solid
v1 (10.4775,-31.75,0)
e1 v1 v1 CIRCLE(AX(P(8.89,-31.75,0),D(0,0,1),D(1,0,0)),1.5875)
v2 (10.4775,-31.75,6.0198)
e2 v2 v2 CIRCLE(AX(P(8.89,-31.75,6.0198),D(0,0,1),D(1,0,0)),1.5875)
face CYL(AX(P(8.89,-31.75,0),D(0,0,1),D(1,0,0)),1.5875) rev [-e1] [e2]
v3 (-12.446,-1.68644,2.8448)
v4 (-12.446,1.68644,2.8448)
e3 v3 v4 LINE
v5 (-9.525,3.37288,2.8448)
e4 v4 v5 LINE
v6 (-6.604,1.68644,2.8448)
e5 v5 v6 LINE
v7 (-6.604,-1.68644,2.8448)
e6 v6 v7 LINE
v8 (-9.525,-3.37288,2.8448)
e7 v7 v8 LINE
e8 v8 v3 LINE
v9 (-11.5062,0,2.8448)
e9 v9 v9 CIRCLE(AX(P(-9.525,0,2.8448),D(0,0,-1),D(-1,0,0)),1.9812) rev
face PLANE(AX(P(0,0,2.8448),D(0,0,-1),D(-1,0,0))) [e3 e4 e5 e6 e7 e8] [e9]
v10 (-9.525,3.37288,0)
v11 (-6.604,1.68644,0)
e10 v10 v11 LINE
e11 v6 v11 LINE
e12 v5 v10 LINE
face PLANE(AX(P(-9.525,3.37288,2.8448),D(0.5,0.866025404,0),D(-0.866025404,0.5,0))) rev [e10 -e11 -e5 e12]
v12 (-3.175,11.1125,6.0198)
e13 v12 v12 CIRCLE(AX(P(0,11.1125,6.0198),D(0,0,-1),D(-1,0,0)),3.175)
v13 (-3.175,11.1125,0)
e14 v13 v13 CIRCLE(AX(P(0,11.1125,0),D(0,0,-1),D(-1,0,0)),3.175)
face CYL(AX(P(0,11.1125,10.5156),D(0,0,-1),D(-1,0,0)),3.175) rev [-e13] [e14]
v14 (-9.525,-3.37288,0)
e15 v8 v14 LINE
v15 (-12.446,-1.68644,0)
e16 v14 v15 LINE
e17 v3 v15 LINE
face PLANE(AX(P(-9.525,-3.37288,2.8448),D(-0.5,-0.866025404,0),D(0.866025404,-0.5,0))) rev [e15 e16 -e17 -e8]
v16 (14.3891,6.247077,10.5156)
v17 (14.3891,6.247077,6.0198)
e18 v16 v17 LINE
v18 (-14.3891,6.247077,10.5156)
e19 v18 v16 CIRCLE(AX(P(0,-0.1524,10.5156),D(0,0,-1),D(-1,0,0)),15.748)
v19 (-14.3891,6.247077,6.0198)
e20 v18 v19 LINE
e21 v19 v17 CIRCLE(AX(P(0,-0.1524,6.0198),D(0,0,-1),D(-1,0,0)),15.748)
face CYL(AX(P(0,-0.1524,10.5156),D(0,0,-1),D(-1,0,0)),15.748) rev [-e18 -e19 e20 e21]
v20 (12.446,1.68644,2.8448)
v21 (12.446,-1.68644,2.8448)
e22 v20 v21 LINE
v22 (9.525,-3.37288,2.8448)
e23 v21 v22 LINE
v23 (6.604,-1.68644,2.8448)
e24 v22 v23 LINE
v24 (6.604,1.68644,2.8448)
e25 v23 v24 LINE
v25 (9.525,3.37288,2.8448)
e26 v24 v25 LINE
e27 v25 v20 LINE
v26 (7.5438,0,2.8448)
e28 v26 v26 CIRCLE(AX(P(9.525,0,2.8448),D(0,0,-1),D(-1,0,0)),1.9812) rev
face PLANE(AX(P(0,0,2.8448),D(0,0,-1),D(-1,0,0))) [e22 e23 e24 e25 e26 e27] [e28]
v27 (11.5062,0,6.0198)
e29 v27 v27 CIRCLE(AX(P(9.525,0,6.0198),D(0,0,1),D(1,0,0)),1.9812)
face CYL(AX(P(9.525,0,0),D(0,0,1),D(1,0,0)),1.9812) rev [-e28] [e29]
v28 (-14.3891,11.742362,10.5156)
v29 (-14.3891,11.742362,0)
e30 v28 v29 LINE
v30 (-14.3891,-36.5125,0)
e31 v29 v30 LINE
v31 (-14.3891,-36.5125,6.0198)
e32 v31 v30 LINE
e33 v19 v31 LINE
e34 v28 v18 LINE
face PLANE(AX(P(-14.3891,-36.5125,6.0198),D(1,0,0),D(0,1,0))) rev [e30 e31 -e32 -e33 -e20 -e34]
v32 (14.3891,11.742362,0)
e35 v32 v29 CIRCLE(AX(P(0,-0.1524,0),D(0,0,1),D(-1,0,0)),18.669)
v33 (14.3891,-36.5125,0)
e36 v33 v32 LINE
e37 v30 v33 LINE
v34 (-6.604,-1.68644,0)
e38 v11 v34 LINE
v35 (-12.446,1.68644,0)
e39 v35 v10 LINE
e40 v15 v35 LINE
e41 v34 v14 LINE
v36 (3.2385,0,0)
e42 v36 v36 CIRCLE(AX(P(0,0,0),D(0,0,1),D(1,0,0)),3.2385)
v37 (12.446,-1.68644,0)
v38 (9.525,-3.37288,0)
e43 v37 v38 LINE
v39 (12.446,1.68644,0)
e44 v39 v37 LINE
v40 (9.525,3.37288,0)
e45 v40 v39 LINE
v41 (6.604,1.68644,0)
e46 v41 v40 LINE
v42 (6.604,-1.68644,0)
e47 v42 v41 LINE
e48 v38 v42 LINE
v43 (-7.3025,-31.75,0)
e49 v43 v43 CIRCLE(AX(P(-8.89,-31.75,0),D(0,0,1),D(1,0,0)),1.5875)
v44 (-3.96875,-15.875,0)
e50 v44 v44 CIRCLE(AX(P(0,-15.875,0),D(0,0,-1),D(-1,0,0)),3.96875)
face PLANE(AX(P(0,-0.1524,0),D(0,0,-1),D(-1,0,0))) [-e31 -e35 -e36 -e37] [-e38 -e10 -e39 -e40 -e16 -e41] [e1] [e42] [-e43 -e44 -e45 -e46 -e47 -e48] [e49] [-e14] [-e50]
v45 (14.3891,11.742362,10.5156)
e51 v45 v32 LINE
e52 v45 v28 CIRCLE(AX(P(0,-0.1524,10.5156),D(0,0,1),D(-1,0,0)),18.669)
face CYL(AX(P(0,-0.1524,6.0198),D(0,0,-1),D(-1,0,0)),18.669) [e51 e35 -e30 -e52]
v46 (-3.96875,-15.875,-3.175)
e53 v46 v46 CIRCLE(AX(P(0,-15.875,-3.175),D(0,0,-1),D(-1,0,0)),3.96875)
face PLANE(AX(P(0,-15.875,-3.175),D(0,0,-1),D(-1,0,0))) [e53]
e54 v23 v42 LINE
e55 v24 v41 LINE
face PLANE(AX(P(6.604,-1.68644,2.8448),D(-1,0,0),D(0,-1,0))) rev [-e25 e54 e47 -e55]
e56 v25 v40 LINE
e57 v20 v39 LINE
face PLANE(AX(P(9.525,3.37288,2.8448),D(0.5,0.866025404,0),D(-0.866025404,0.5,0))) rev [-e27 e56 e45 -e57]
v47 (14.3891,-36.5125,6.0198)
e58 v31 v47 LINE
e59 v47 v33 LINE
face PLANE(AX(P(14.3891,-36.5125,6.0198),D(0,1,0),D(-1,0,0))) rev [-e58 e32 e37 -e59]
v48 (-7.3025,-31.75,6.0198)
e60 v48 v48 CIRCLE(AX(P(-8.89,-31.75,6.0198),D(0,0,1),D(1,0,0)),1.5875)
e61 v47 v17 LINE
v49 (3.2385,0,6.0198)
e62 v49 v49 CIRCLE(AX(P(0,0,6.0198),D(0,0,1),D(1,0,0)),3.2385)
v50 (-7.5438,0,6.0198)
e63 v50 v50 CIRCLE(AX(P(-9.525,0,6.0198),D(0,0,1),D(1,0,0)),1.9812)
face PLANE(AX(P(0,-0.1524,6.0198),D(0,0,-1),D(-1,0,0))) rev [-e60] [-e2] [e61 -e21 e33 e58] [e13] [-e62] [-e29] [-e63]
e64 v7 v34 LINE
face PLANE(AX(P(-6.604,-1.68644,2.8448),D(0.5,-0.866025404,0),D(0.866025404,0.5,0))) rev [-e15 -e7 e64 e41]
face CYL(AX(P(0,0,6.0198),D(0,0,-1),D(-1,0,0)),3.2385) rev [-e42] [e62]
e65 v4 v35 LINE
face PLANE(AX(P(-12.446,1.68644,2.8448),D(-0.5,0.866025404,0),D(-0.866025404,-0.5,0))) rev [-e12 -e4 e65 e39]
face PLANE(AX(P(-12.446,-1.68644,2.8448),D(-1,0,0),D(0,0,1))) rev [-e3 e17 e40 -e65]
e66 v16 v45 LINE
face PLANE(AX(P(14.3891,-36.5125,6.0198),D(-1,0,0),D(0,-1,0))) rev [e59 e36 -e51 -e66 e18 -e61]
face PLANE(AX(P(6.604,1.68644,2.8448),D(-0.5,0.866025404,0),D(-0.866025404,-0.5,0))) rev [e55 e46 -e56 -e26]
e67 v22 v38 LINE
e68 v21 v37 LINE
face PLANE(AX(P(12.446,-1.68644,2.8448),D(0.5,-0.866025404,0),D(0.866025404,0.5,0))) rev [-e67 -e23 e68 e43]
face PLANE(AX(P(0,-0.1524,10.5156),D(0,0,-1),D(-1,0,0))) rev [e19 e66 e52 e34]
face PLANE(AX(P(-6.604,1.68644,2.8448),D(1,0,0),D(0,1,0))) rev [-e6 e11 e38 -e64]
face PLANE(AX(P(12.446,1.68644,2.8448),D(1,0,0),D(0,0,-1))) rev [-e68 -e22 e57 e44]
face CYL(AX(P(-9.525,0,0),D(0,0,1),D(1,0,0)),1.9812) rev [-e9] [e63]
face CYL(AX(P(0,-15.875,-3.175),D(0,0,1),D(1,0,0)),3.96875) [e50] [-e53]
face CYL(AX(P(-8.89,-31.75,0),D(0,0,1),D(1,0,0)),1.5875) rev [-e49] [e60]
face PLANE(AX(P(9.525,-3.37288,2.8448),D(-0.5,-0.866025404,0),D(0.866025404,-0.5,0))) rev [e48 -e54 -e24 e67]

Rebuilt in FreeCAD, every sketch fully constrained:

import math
import FreeCAD as App
import Part
import Sketcher

V = App.Vector
Q = App.Units.Quantity


def add_polygon(sketch, points):
    """Adds a closed chain of lines whose ends are joined by coincident constraints."""
    first, n = sketch.GeometryCount, len(points)
    for a, b in zip(points, points[1:] + points[:1]):
        sketch.addGeometry(Part.LineSegment(App.Vector(*a, 0), App.Vector(*b, 0)), False)
    for i in range(n):
        sketch.addConstraint(Sketcher.Constraint("Coincident", first + i, 2, first + (i + 1) % n, 1))

doc = App.newDocument("Part")
body = doc.addObject("PartDesign::Body", "Body")

# Sketch on XY plane
sketch1 = body.newObject("Sketcher::SketchObject", "Sketch")
sketch1.AttachmentSupport = (doc.getObject("XY_Plane"), [""])
sketch1.MapMode = "FlatFace"
sketch1.addGeometry(Part.LineSegment(V(-14.3891, -36.5125, 0), V(14.3891, -36.5125, 0)), False)
sketch1.addGeometry(Part.LineSegment(V(14.3891, -36.5125, 0), V(14.3891, 11.742362, 0)), False)
sketch1.addGeometry(Part.ArcOfCircle(Part.Circle(V(0, -0.1524, 0), V(0, 0, 1), 18.669), math.radians(39.578867), math.radians(140.421133)), False)
sketch1.addGeometry(Part.LineSegment(V(-14.3891, 11.742362, 0), V(-14.3891, -36.5125, 0)), False)
sketch1.addGeometry(Part.Circle(V(0, 0, 0), V(0, 0, 1), 3.2385), False)
sketch1.addConstraint(Sketcher.Constraint("Coincident", 0, 2, 1, 1))
sketch1.addConstraint(Sketcher.Constraint("Coincident", 1, 2, 2, 1))
sketch1.addConstraint(Sketcher.Constraint("Coincident", 2, 2, 3, 1))
sketch1.addConstraint(Sketcher.Constraint("Coincident", 3, 2, 0, 1))
sketch1.addConstraint(Sketcher.Constraint("Horizontal", 0))
sketch1.addConstraint(Sketcher.Constraint("Vertical", 1))
sketch1.addConstraint(Sketcher.Constraint("Vertical", 3))
sketch1.addConstraint(Sketcher.Constraint("Coincident", 4, 3, -1, 1))
sketch1.addConstraint(Sketcher.Constraint("Symmetric", 1, 2, 2, 2, -2))
sketch1.addConstraint(Sketcher.Constraint("Diameter", 4, Q("0.255 in")))
sketch1.addConstraint(Sketcher.Constraint("Radius", 2, Q("0.735 in")))
sketch1.addConstraint(Sketcher.Constraint("DistanceX", 0, 1, 0, 2, Q("1.133 in")))
sketch1.addConstraint(Sketcher.Constraint("DistanceY", 2, 3, -1, 1, Q("0.006 in")))
sketch1.addConstraint(Sketcher.Constraint("DistanceY", 0, 2, -1, 1, Q("1.4375 in")))
pad1 = body.newObject("PartDesign::Pad", "Pad")
pad1.Profile = sketch1
pad1.Length = Q("0.237 in")

# Sketch on XY plane
sketch2 = body.newObject("Sketcher::SketchObject", "Sketch001")
sketch2.AttachmentSupport = (doc.getObject("XY_Plane"), [""])
sketch2.MapMode = "FlatFace"
sketch2.AttachmentOffset = App.Placement(V(0, 0, 0.237 * 25.4), App.Rotation())
sketch2.addGeometry(Part.LineSegment(V(-14.3891, 11.742362, 0), V(-14.3891, 6.247077, 0)), False)
sketch2.addGeometry(Part.ArcOfCircle(Part.Circle(V(0, -0.1524, 0), V(0, 0, 1), 15.748), math.radians(23.976856), math.radians(156.023144)), False)
sketch2.addGeometry(Part.LineSegment(V(14.3891, 6.247077, 0), V(14.3891, 11.742362, 0)), False)
sketch2.addGeometry(Part.ArcOfCircle(Part.Circle(V(0, -0.1524, 0), V(0, 0, 1), 18.669), math.radians(39.578867), math.radians(140.421133)), False)
sketch2.addConstraint(Sketcher.Constraint("Coincident", 0, 2, 1, 2))
sketch2.addConstraint(Sketcher.Constraint("Coincident", 1, 1, 2, 1))
sketch2.addConstraint(Sketcher.Constraint("Coincident", 2, 2, 3, 1))
sketch2.addConstraint(Sketcher.Constraint("Coincident", 3, 2, 0, 1))
sketch2.addConstraint(Sketcher.Constraint("Vertical", 0))
sketch2.addConstraint(Sketcher.Constraint("Vertical", 2))
sketch2.addConstraint(Sketcher.Constraint("Coincident", 3, 3, 1, 3))
sketch2.addConstraint(Sketcher.Constraint("Symmetric", 0, 2, 1, 1, -2))
sketch2.addConstraint(Sketcher.Constraint("Radius", 1, Q("0.62 in")))
sketch2.addConstraint(Sketcher.Constraint("Radius", 3, Q("0.735 in")))
sketch2.addConstraint(Sketcher.Constraint("DistanceY", 1, 3, -1, 1, Q("0.006 in")))
sketch2.addConstraint(Sketcher.Constraint("DistanceX", 0, 2, 1, 1, Q("1.133 in")))
pad2 = body.newObject("PartDesign::Pad", "Pad001")
pad2.Profile = sketch2
pad2.Length = Q("0.177 in")

# Sketch on XY plane
sketch3 = body.newObject("Sketcher::SketchObject", "Sketch002")
sketch3.AttachmentSupport = (doc.getObject("XY_Plane"), [""])
sketch3.MapMode = "FlatFace"
sketch3.AttachmentOffset = App.Placement(V(0, 0, 0.237 * 25.4), App.Rotation())
sketch3.addGeometry(Part.Circle(V(-9.525, 0, 0), V(0, 0, 1), 1.9812), False)
sketch3.addGeometry(Part.Circle(V(9.525, 0, 0), V(0, 0, 1), 1.9812), False)
sketch3.addConstraint(Sketcher.Constraint("Equal", 0, 1))
sketch3.addConstraint(Sketcher.Constraint("Symmetric", 0, 3, 1, 3, -1, 1))
sketch3.addConstraint(Sketcher.Constraint("PointOnObject", 0, 3, -1))
sketch3.addConstraint(Sketcher.Constraint("Diameter", 0, Q("0.156 in")))
sketch3.addConstraint(Sketcher.Constraint("DistanceX", 0, 3, 1, 3, Q("0.75 in")))
pocket1 = body.newObject("PartDesign::Pocket", "Pocket")
pocket1.Profile = sketch3
pocket1.Type = "ThroughAll"

# Sketch on XY plane
sketch4 = body.newObject("Sketcher::SketchObject", "Sketch003")
sketch4.AttachmentSupport = (doc.getObject("XY_Plane"), [""])
sketch4.MapMode = "FlatFace"
add_polygon(sketch4, [(-9.525, -3.37288), (-12.446, -1.68644), (-12.446, 1.68644), (-9.525, 3.37288), (-6.604, 1.68644), (-6.604, -1.68644)])  # lines 0-5
add_polygon(sketch4, [(6.604, -1.68644), (6.604, 1.68644), (9.525, 3.37288), (12.446, 1.68644), (12.446, -1.68644), (9.525, -3.37288)])  # lines 6-11
sketch4.addConstraint(Sketcher.Constraint("Vertical", 1))
sketch4.addConstraint(Sketcher.Constraint("Vertical", 4))
sketch4.addConstraint(Sketcher.Constraint("Vertical", 6))
sketch4.addConstraint(Sketcher.Constraint("Vertical", 9))
sketch4.addConstraint(Sketcher.Constraint("Symmetric", 4, 2, 6, 2, -1, 1))
sketch4.addConstraint(Sketcher.Constraint("Symmetric", 5, 2, 7, 2, -1, 1))
sketch4.addConstraint(Sketcher.Constraint("Symmetric", 0, 2, 8, 2, -1, 1))
sketch4.addConstraint(Sketcher.Constraint("Symmetric", 2, 2, 10, 2, -1, 1))
sketch4.addConstraint(Sketcher.Constraint("Symmetric", 2, 2, 7, 2, -2))
sketch4.addConstraint(Sketcher.Constraint("Parallel", 0, 3))
sketch4.addConstraint(Sketcher.Constraint("Parallel", 2, 5))
sketch4.addConstraint(Sketcher.Constraint("Parallel", 7, 10))
sketch4.addConstraint(Sketcher.Constraint("Parallel", 8, 11))
sketch4.addConstraint(Sketcher.Constraint("Horizontal", 1, 2, 3, 2))
sketch4.addConstraint(Sketcher.Constraint("Horizontal", 0, 2, 4, 2))
sketch4.addConstraint(Sketcher.Constraint("Angle", 0, Q("150 deg")))
sketch4.addConstraint(Sketcher.Constraint("DistanceX", 0, 2, -1, 1, Q("0.49 in")))
sketch4.addConstraint(Sketcher.Constraint("DistanceX", 3, 2, -1, 1, Q("0.26 in")))
sketch4.addConstraint(Sketcher.Constraint("DistanceY", 1, 1, 1, 2, Q("3.37288 mm")))
pocket2 = body.newObject("PartDesign::Pocket", "Pocket001")
pocket2.Profile = sketch4
pocket2.Length = Q("0.112 in")
pocket2.Reversed = True

# Sketch on XY plane
sketch5 = body.newObject("Sketcher::SketchObject", "Sketch004")
sketch5.AttachmentSupport = (doc.getObject("XY_Plane"), [""])
sketch5.MapMode = "FlatFace"
sketch5.AttachmentOffset = App.Placement(V(0, 0, 0.237 * 25.4), App.Rotation())
sketch5.addGeometry(Part.Circle(V(8.89, -31.75, 0), V(0, 0, 1), 1.5875), False)
sketch5.addGeometry(Part.Circle(V(-8.89, -31.75, 0), V(0, 0, 1), 1.5875), False)
sketch5.addConstraint(Sketcher.Constraint("Equal", 0, 1))
sketch5.addConstraint(Sketcher.Constraint("Symmetric", 0, 3, 1, 3, -2))
sketch5.addConstraint(Sketcher.Constraint("Diameter", 0, Q("0.125 in")))
sketch5.addConstraint(Sketcher.Constraint("DistanceX", 1, 3, 0, 3, Q("0.7 in")))
sketch5.addConstraint(Sketcher.Constraint("DistanceY", 0, 3, -1, 1, Q("1.25 in")))
pocket3 = body.newObject("PartDesign::Pocket", "Pocket002")
pocket3.Profile = sketch5
pocket3.Type = "ThroughAll"

# Sketch on XY plane
sketch6 = body.newObject("Sketcher::SketchObject", "Sketch005")
sketch6.AttachmentSupport = (doc.getObject("XY_Plane"), [""])
sketch6.MapMode = "FlatFace"
sketch6.addGeometry(Part.Circle(V(0, -15.875, 0), V(0, 0, 1), 3.96875), False)
sketch6.addConstraint(Sketcher.Constraint("PointOnObject", 0, 3, -2))
sketch6.addConstraint(Sketcher.Constraint("Diameter", 0, Q("0.3125 in")))
sketch6.addConstraint(Sketcher.Constraint("DistanceY", 0, 3, -1, 1, Q("0.625 in")))
pad3 = body.newObject("PartDesign::Pad", "Pad002")
pad3.Profile = sketch6
pad3.Length = Q("0.125 in")
pad3.Reversed = True

# Sketch on XY plane
sketch7 = body.newObject("Sketcher::SketchObject", "Sketch006")
sketch7.AttachmentSupport = (doc.getObject("XY_Plane"), [""])
sketch7.MapMode = "FlatFace"
sketch7.addGeometry(Part.Circle(V(0, 11.1125, 0), V(0, 0, 1), 3.175), False)
sketch7.addConstraint(Sketcher.Constraint("PointOnObject", 0, 3, -2))
sketch7.addConstraint(Sketcher.Constraint("Diameter", 0, Q("0.25 in")))
sketch7.addConstraint(Sketcher.Constraint("DistanceY", -1, 1, 0, 3, Q("0.4375 in")))
pocket4 = body.newObject("PartDesign::Pocket", "Pocket003")
pocket4.Profile = sketch7
pocket4.Type = "ThroughAll"
pocket4.Reversed = True

doc.recompute()
